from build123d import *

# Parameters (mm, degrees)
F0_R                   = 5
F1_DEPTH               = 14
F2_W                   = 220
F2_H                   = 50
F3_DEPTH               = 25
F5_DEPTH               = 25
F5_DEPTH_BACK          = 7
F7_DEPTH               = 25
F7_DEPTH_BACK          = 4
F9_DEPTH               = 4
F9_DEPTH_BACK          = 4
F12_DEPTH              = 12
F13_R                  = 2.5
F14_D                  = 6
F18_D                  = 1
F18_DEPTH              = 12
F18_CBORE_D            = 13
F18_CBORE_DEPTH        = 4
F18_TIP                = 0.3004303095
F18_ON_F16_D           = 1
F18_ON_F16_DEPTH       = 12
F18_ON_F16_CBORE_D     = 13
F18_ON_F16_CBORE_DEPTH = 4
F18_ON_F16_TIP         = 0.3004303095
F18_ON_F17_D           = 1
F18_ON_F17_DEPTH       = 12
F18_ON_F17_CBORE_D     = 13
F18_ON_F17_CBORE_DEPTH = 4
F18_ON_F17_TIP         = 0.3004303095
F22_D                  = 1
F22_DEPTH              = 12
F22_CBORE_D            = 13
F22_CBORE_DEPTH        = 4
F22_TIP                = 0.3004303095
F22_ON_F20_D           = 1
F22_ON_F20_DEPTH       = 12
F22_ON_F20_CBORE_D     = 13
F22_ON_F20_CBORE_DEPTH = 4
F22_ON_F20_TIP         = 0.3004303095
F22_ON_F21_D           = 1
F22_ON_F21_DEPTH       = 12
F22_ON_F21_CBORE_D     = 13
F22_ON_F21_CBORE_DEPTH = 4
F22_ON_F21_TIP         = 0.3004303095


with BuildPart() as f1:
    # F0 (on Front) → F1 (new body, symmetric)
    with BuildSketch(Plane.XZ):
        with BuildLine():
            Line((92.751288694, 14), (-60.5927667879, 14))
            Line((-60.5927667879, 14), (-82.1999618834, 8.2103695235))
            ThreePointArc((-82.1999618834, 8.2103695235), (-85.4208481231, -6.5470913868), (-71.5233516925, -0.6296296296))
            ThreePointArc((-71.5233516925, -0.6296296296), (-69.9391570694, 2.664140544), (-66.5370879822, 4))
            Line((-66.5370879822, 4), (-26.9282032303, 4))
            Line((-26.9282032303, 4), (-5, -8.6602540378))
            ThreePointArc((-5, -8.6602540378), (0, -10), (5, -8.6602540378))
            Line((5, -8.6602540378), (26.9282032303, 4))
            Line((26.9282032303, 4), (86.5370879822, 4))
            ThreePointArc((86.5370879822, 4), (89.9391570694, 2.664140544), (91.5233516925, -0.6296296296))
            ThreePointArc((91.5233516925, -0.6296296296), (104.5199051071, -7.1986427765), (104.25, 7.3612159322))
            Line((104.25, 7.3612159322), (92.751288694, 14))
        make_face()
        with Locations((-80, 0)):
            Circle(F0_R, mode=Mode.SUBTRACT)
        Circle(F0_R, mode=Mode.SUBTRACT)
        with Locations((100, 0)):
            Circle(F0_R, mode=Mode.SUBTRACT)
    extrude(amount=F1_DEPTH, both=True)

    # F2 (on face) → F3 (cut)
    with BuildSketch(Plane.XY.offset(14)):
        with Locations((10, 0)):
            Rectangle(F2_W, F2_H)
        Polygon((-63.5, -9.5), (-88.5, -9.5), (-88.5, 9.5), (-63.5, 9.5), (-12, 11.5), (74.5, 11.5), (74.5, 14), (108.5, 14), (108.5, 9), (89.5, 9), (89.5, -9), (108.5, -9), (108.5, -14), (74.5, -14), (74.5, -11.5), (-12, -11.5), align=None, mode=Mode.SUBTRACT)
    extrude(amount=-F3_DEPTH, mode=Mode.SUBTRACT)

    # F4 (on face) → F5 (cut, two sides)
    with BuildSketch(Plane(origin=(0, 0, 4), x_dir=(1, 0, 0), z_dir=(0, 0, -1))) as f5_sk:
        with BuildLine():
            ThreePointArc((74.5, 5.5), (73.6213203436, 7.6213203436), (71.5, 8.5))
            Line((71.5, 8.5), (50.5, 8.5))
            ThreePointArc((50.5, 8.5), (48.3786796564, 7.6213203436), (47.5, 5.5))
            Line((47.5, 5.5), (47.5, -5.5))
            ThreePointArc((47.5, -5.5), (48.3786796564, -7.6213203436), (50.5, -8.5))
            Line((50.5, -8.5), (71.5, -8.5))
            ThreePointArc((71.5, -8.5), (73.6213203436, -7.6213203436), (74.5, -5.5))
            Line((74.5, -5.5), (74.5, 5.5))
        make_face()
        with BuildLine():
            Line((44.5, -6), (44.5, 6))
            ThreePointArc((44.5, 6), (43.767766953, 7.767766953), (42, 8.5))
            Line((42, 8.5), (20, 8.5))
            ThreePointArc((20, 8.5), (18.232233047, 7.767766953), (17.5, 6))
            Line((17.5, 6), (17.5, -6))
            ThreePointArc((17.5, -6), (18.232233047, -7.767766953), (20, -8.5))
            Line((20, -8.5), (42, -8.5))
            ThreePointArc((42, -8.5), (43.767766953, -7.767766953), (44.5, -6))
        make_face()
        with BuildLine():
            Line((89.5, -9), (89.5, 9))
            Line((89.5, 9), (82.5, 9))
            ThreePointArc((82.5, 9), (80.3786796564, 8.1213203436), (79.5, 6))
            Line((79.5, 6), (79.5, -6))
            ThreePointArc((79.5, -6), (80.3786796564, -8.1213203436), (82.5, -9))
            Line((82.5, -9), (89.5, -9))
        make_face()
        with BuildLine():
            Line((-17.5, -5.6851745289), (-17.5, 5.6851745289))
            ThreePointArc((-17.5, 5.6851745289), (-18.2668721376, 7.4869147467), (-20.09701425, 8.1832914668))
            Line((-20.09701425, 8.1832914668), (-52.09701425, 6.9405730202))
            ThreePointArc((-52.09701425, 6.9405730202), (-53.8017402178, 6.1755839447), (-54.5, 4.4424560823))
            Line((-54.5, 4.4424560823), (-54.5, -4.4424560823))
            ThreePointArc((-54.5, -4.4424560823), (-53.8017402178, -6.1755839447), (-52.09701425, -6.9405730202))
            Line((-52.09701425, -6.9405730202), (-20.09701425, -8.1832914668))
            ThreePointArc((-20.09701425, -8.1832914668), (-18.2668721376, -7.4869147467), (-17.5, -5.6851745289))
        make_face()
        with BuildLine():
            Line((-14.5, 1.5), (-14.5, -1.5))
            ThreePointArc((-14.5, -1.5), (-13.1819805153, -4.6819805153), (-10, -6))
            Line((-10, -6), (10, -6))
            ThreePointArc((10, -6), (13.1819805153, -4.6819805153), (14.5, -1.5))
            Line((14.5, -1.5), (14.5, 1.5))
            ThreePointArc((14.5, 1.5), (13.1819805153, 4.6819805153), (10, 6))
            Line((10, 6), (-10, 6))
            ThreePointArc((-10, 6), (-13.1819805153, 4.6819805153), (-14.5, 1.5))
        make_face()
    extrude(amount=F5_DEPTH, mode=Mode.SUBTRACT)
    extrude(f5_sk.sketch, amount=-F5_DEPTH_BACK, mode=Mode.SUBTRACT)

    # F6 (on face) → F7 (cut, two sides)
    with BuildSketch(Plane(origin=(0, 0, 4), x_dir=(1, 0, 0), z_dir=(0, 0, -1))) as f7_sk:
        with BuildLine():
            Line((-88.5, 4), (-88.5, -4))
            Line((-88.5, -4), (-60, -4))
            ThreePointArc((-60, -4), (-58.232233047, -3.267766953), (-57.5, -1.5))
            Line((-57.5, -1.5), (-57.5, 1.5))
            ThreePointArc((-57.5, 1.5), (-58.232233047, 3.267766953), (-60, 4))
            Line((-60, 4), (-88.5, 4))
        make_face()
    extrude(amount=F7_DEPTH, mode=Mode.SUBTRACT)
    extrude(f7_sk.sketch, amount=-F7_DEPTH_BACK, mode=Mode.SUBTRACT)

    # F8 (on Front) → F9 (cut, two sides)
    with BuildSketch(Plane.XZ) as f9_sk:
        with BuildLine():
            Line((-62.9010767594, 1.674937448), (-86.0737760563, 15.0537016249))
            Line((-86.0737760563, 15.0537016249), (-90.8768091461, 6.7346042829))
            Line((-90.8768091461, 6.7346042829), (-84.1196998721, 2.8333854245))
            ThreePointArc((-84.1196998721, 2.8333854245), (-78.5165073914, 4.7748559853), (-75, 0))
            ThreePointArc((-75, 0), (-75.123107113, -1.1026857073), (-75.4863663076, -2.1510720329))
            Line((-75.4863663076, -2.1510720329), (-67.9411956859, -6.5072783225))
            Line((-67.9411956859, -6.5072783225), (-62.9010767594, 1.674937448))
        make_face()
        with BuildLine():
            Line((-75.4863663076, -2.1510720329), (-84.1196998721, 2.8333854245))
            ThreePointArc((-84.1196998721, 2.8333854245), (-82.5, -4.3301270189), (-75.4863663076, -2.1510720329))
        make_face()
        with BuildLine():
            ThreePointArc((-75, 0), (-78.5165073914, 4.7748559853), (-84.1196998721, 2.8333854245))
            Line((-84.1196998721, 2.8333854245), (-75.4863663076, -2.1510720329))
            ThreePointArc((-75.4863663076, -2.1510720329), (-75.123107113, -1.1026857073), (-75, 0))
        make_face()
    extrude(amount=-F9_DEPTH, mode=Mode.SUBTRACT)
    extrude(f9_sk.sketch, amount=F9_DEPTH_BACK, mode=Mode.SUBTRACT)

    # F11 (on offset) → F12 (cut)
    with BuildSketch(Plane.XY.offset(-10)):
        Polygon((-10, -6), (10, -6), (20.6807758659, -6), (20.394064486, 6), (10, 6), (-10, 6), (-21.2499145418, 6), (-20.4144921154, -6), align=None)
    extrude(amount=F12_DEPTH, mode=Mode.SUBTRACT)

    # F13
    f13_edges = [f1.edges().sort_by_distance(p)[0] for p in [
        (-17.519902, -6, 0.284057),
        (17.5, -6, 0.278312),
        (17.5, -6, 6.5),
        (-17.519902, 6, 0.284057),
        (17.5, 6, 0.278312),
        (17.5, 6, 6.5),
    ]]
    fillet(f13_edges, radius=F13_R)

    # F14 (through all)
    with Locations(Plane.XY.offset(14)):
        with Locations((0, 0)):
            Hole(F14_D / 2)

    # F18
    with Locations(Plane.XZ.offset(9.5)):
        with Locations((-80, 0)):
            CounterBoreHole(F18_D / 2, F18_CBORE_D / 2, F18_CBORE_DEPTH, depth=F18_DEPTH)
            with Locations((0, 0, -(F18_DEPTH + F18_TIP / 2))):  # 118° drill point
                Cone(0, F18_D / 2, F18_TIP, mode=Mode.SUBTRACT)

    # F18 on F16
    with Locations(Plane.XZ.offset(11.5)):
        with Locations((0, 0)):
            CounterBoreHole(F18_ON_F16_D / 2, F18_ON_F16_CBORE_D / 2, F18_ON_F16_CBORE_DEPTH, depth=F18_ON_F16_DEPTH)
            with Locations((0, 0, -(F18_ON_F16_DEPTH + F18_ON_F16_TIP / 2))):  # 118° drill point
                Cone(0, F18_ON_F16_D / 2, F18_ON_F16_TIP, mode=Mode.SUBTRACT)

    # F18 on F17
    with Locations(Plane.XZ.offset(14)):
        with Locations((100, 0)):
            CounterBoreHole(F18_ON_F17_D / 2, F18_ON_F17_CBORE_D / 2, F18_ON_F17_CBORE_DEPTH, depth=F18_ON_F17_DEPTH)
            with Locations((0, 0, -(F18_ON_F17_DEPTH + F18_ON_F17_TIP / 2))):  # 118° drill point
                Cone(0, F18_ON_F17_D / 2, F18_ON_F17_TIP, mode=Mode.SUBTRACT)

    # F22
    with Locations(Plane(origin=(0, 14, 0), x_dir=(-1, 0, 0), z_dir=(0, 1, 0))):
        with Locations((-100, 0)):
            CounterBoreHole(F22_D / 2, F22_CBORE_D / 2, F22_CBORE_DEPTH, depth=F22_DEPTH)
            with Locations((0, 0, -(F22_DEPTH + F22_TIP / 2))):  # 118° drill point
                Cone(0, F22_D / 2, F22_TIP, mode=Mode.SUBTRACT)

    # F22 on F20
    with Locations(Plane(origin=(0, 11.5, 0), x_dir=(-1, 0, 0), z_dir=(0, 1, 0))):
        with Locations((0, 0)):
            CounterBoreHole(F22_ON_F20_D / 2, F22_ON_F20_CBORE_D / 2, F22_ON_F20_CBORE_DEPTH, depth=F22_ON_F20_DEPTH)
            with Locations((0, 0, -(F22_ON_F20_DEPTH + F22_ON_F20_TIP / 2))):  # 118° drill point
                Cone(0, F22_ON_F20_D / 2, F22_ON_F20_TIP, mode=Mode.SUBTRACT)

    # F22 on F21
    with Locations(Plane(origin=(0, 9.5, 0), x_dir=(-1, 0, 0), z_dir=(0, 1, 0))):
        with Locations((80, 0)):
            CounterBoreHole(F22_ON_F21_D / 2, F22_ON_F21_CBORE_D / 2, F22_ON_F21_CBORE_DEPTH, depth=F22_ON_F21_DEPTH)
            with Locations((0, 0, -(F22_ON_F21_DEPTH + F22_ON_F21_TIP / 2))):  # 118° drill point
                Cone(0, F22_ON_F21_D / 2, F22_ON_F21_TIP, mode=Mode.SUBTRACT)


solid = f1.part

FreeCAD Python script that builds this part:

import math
import FreeCAD as App
import Part
import Sketcher
from FreeCAD import Vector
Q = App.Units.Quantity


def edges_at(feature, points):
    """Names of the edges that pass closest to the given points."""
    edges = feature.Shape.Edges
    near = lambda p: min(range(len(edges)), key=lambda i: edges[i].distToShape(Part.Vertex(*p))[0])
    return sorted({f"Edge{near(p) + 1}" for p in points})


def add_polygon(sketch, points):
    """Adds a closed chain of lines whose ends are joined by coincident constraints."""
    first, n = sketch.GeometryCount, len(points)
    for a, b in zip(points, points[1:] + points[:1]):
        sketch.addGeometry(Part.LineSegment(App.Vector(*a, 0), App.Vector(*b, 0)), False)
    for i in range(n):
        sketch.addConstraint(Sketcher.Constraint("Coincident", first + i, 2, first + (i + 1) % n, 1))

doc = App.newDocument("Part")
params = doc.addObject("Spreadsheet::Sheet", "Params")
for row, (alias, value) in enumerate([
    ("sketch1_diameter", "10 mm"),
    ("sketch1_radius", "10 mm"),
    ("sketch1_radius2", "8.5 mm"),
    ("pad1_length", "28 mm"),
    ("sketch2_width", "220 mm"),
    ("sketch2_width2", "25 mm"),
    ("sketch2_width3", "34 mm"),
    ("sketch2_width4", "19 mm"),
    ("sketch2_height", "50 mm"),
    ("pocket1_length", "25 mm"),
    ("sketch3_radius", "3 mm"),
    ("sketch3_radius2", "2.5 mm"),
    ("sketch3_radius3", "4.5 mm"),
    ("sketch3_width", "21 mm"),
    ("sketch3_width2", "22 mm"),
    ("pocket2_length", "25 mm"),
    ("pocket2_length2", "7 mm"),
    ("sketch4_radius", "2.5 mm"),
    ("sketch4_height", "8 mm"),
    ("sketch4_width", "28.5 mm"),
    ("pocket3_length", "25 mm"),
    ("pocket3_length2", "4 mm"),
    ("sketch5_radius", "5 mm"),
    ("pocket4_length", "4 mm"),
    ("pocket4_length2", "4 mm"),
    ("pocket5_length", "12 mm"),
    ("fillet_radius", "2.5 mm"),
    ("sketch7_diameter", "6 mm"),
    ("hole_diameter", "6 mm"),
    ("sketch8_diameter", "1 mm"),
    ("hole2_diameter", "1 mm"),
    ("hole2_depth", "12 mm"),
    ("hole2_cbore_diameter", "13 mm"),
    ("hole2_cbore_depth", "4 mm"),
    ("sketch9_diameter", "1 mm"),
    ("hole3_diameter", "1 mm"),
    ("hole3_depth", "12 mm"),
    ("hole3_cbore_diameter", "13 mm"),
    ("hole3_cbore_depth", "4 mm"),
    ("sketch10_diameter", "1 mm"),
    ("hole4_diameter", "1 mm"),
    ("hole4_depth", "12 mm"),
    ("hole4_cbore_diameter", "13 mm"),
    ("hole4_cbore_depth", "4 mm"),
    ("sketch11_diameter", "1 mm"),
    ("hole5_diameter", "1 mm"),
    ("hole5_depth", "12 mm"),
    ("hole5_cbore_diameter", "13 mm"),
    ("hole5_cbore_depth", "4 mm"),
    ("sketch12_diameter", "1 mm"),
    ("hole6_diameter", "1 mm"),
    ("hole6_depth", "12 mm"),
    ("hole6_cbore_diameter", "13 mm"),
    ("hole6_cbore_depth", "4 mm"),
    ("sketch13_diameter", "1 mm"),
    ("hole7_diameter", "1 mm"),
    ("hole7_depth", "12 mm"),
    ("hole7_cbore_diameter", "13 mm"),
    ("hole7_cbore_depth", "4 mm"),
], start=1):
    params.set(f"A{row}", alias)
    params.set(f"B{row}", "=" + value)
    params.setAlias(f"B{row}", alias)

body = doc.addObject("PartDesign::Body", "Body")

sketch1 = body.newObject("Sketcher::SketchObject", "Sketch")
sketch1.AttachmentSupport = (doc.getObject("XZ_Plane"), [""])
sketch1.MapMode = "FlatFace"
sketch1.addGeometry([
    Part.LineSegment(Vector(92.751289, 14, 0), Vector(-60.592767, 14, 0)),
    Part.LineSegment(Vector(-60.592767, 14, 0), Vector(-82.199962, 8.21037, 0)),
    Part.ArcOfCircle(Part.Circle(Vector(-80, 0, 0), Vector(0, 0, 1), 8.5), math.radians(105), math.radians(355.751977)),
    Part.ArcOfCircle(Part.Circle(Vector(-66.537088, -1, 0), Vector(0, 0, 1), 5), math.radians(90), math.radians(175.751977)),
    Part.LineSegment(Vector(-66.537088, 4, 0), Vector(-26.928203, 4, 0)),
    Part.LineSegment(Vector(-26.928203, 4, 0), Vector(-5, -8.660254, 0)),
    Part.ArcOfCircle(Part.Circle(Vector(0, 0, 0), Vector(0, 0, 1), 10), math.radians(-120), math.radians(-60)),
    Part.LineSegment(Vector(5, -8.660254, 0), Vector(26.928203, 4, 0)),
    Part.LineSegment(Vector(26.928203, 4, 0), Vector(86.537088, 4, 0)),
    Part.ArcOfCircle(Part.Circle(Vector(86.537088, -1, 0), Vector(0, 0, 1), 5), math.radians(4.248023), math.radians(90)),
    Part.ArcOfCircle(Part.Circle(Vector(100, 0, 0), Vector(0, 0, 1), 8.5), math.radians(-175.751977), math.radians(60)),
    Part.LineSegment(Vector(104.25, 7.361216, 0), Vector(92.751289, 14, 0)),
    Part.Circle(Vector(-80, 0, 0), Vector(0, 0, 1), 5),
    Part.Circle(Vector(0, 0, 0), Vector(0, 0, 1), 5),
    Part.Circle(Vector(100, 0, 0), Vector(0, 0, 1), 5),
], False)
sketch1.addConstraint([
    Sketcher.Constraint("Coincident", 0, 2, 1, 1),
    Sketcher.Constraint("Tangent", 1, 2, 2, 1),
    Sketcher.Constraint("Tangent", 2, 2, 3, 2),
    Sketcher.Constraint("Tangent", 3, 1, 4, 1),
    Sketcher.Constraint("Coincident", 4, 2, 5, 1),
    Sketcher.Constraint("Tangent", 5, 2, 6, 1),
    Sketcher.Constraint("Tangent", 6, 2, 7, 1),
    Sketcher.Constraint("Coincident", 7, 2, 8, 1),
    Sketcher.Constraint("Tangent", 8, 2, 9, 2),
    Sketcher.Constraint("Tangent", 9, 1, 10, 1),
    Sketcher.Constraint("Tangent", 10, 2, 11, 1),
    Sketcher.Constraint("Coincident", 11, 2, 0, 1),
    Sketcher.Constraint("Horizontal", 0),
    Sketcher.Constraint("Horizontal", 4),
    Sketcher.Constraint("Horizontal", 8),
    Sketcher.Constraint("Coincident", 6, 3, -1, 1),
    Sketcher.Constraint("Coincident", 13, 3, -1, 1),
    Sketcher.Constraint("Coincident", 12, 3, 2, 3),
    Sketcher.Constraint("Coincident", 14, 3, 10, 3),
    Sketcher.Constraint("Equal", 3, 9),
    Sketcher.Constraint("Equal", 2, 10),
    Sketcher.Constraint("Equal", 9, 12),
    Sketcher.Constraint("Equal", 12, 13),
    Sketcher.Constraint("Equal", 13, 14),
    Sketcher.Constraint("Symmetric", 4, 2, 7, 2, -2),
    Sketcher.Constraint("PointOnObject", 2, 3, -1),
    Sketcher.Constraint("PointOnObject", 10, 3, -1),
    Sketcher.Constraint("Parallel", 5, 11),
    Sketcher.Constraint("Diameter", 12, Q("10 mm")),
    Sketcher.Constraint("Radius", 6, Q("10 mm")),
    Sketcher.Constraint("Radius", 2, Q("8.5 mm")),
    Sketcher.Constraint("Angle", 1, Q("-165 deg")),
    Sketcher.Constraint("Angle", 5, Q("-30 deg")),
    Sketcher.Constraint("DistanceX", 2, 3, -1, 1, Q("80 mm")),
    Sketcher.Constraint("DistanceY", 3, 3, -1, 1, Q("1 mm")),
    Sketcher.Constraint("DistanceX", -1, 1, 10, 3, Q("100 mm")),
    Sketcher.Constraint("DistanceY", -1, 1, 0, 2, Q("14 mm")),
])
sketch1.setExpression("Constraints[28]", "Params.sketch1_diameter")
sketch1.setExpression("Constraints[29]", "Params.sketch1_radius")
sketch1.setExpression("Constraints[30]", "Params.sketch1_radius2")
pad1 = body.newObject("PartDesign::Pad", "Pad")
pad1.Profile = sketch1
pad1.setExpression("Length", "Params.pad1_length")
pad1.Midplane = True

sketch2 = body.newObject("Sketcher::SketchObject", "Sketch001")
sketch2.AttachmentSupport = (doc.getObject("XY_Plane"), [""])
sketch2.MapMode = "FlatFace"
sketch2.AttachmentOffset = App.Placement(Vector(0, 0, 14), App.Rotation())
add_polygon(sketch2, [(-100, 25), (-100, -25), (120, -25), (120, 25)])
add_polygon(sketch2, [(-12, -11.5), (-63.5, -9.5), (-88.5, -9.5), (-88.5, 9.5), (-63.5, 9.5), (-12, 11.5), (74.5, 11.5), (74.5, 14), (108.5, 14), (108.5, 9), (89.5, 9), (89.5, -9), (108.5, -9), (108.5, -14), (74.5, -14), (74.5, -11.5)])
sketch2.addConstraint([
    Sketcher.Constraint("Vertical", 0),
    Sketcher.Constraint("Horizontal", 1),
    Sketcher.Constraint("Vertical", 2),
    Sketcher.Constraint("Horizontal", 3),
    Sketcher.Constraint("Horizontal", 5),
    Sketcher.Constraint("Vertical", 6),
    Sketcher.Constraint("Horizontal", 7),
    Sketcher.Constraint("Horizontal", 9),
    Sketcher.Constraint("Vertical", 10),
    Sketcher.Constraint("Horizontal", 11),
    Sketcher.Constraint("Vertical", 12),
    Sketcher.Constraint("Horizontal", 13),
    Sketcher.Constraint("Vertical", 14),
    Sketcher.Constraint("Horizontal", 15),
    Sketcher.Constraint("Vertical", 16),
    Sketcher.Constraint("Horizontal", 17),
    Sketcher.Constraint("Vertical", 18),
    Sketcher.Constraint("Horizontal", 19),
    Sketcher.Constraint("Symmetric", 4, 2, 7, 2, -1),
    Sketcher.Constraint("Symmetric", 12, 2, 15, 2, -1),
    Sketcher.Constraint("Symmetric", 10, 2, 17, 2, -1),
    Sketcher.Constraint("Symmetric", 8, 2, 19, 2, -1),
    Sketcher.Constraint("Equal", 15, 6),
    Sketcher.Constraint("DistanceX", 1, 1, 1, 2, Q("220 mm")),
    Sketcher.Constraint("DistanceX", 5, 2, 5, 1, Q("25 mm")),
    Sketcher.Constraint("DistanceX", 11, 1, 11, 2, Q("34 mm")),
    Sketcher.Constraint("DistanceX", 13, 2, 13, 1, Q("19 mm")),
    Sketcher.Constraint("DistanceY", 0, 2, 0, 1, Q("50 mm")),
    Sketcher.Constraint("DistanceY", 12, 2, 12, 1, Q("5 mm")),
    Sketcher.Constraint("DistanceY", 14, 2, 14, 1, Q("18 mm")),
    Sketcher.Constraint("DistanceX", 9, 1, 9, 2, Q("86.5 mm")),
    Sketcher.Constraint("DistanceY", 10, 1, 10, 2, Q("2.5 mm")),
    Sketcher.Constraint("DistanceX", 0, 2, -1, 1, Q("100 mm")),
    Sketcher.Constraint("DistanceY", 0, 2, -1, 1, Q("25 mm")),
    Sketcher.Constraint("DistanceX", 8, 2, -1, 1, Q("12 mm")),
    Sketcher.Constraint("DistanceX", 7, 2, 9, 2, Q("138 mm")),
])
sketch2.setExpression("Constraints[43]", "Params.sketch2_width")
sketch2.setExpression("Constraints[44]", "Params.sketch2_width2")
sketch2.setExpression("Constraints[45]", "Params.sketch2_width3")
sketch2.setExpression("Constraints[46]", "Params.sketch2_width4")
sketch2.setExpression("Constraints[47]", "Params.sketch2_height")
pocket1 = body.newObject("PartDesign::Pocket", "Pocket")
pocket1.Profile = sketch2
pocket1.setExpression("Length", "Params.pocket1_length")

sketch3 = body.newObject("Sketcher::SketchObject", "Sketch002")
sketch3.AttachmentSupport = (doc.getObject("XY_Plane"), [""])
sketch3.MapMode = "FlatFace"
sketch3.AttachmentOffset = App.Placement(Vector(0, 0, 4), App.Rotation())
sketch3.addGeometry([
    Part.ArcOfCircle(Part.Circle(Vector(71.5, -5.5, 0), Vector(0, 0, 1), 3), math.radians(-90), math.radians(0)),
    Part.LineSegment(Vector(71.5, -8.5, 0), Vector(50.5, -8.5, 0)),
    Part.ArcOfCircle(Part.Circle(Vector(50.5, -5.5, 0), Vector(0, 0, 1), 3), math.radians(180), math.radians(270)),
    Part.LineSegment(Vector(47.5, -5.5, 0), Vector(47.5, 5.5, 0)),
    Part.ArcOfCircle(Part.Circle(Vector(50.5, 5.5, 0), Vector(0, 0, 1), 3), math.radians(90), math.radians(180)),
    Part.LineSegment(Vector(50.5, 8.5, 0), Vector(71.5, 8.5, 0)),
    Part.ArcOfCircle(Part.Circle(Vector(71.5, 5.5, 0), Vector(0, 0, 1), 3), math.radians(0), math.radians(90)),
    Part.LineSegment(Vector(74.5, 5.5, 0), Vector(74.5, -5.5, 0)),
    Part.LineSegment(Vector(44.5, 6, 0), Vector(44.5, -6, 0)),
    Part.ArcOfCircle(Part.Circle(Vector(42, -6, 0), Vector(0, 0, 1), 2.5), math.radians(-90), math.radians(0)),
    Part.LineSegment(Vector(42, -8.5, 0), Vector(20, -8.5, 0)),
    Part.ArcOfCircle(Part.Circle(Vector(20, -6, 0), Vector(0, 0, 1), 2.5), math.radians(180), math.radians(270)),
    Part.LineSegment(Vector(17.5, -6, 0), Vector(17.5, 6, 0)),
    Part.ArcOfCircle(Part.Circle(Vector(20, 6, 0), Vector(0, 0, 1), 2.5), math.radians(90), math.radians(180)),
    Part.LineSegment(Vector(20, 8.5, 0), Vector(42, 8.5, 0)),
    Part.ArcOfCircle(Part.Circle(Vector(42, 6, 0), Vector(0, 0, 1), 2.5), math.radians(0), math.radians(90)),
    Part.LineSegment(Vector(89.5, 9, 0), Vector(89.5, -9, 0)),
    Part.LineSegment(Vector(89.5, -9, 0), Vector(82.5, -9, 0)),
    Part.ArcOfCircle(Part.Circle(Vector(82.5, -6, 0), Vector(0, 0, 1), 3), math.radians(180), math.radians(270)),
    Part.LineSegment(Vector(79.5, -6, 0), Vector(79.5, 6, 0)),
    Part.ArcOfCircle(Part.Circle(Vector(82.5, 6, 0), Vector(0, 0, 1), 3), math.radians(90), math.radians(180)),
    Part.LineSegment(Vector(82.5, 9, 0), Vector(89.5, 9, 0)),
    Part.LineSegment(Vector(-17.5, 5.685175, 0), Vector(-17.5, -5.685175, 0)),
    Part.ArcOfCircle(Part.Circle(Vector(-20, -5.685175, 0), Vector(0, 0, 1), 2.5), math.radians(-92.223961), math.radians(0)),
    Part.LineSegment(Vector(-20.097014, -8.183291, 0), Vector(-52.097014, -6.940573, 0)),
    Part.ArcOfCircle(Part.Circle(Vector(-52, -4.442456, 0), Vector(0, 0, 1), 2.5), math.radians(180), math.radians(267.776039)),
    Part.LineSegment(Vector(-54.5, -4.442456, 0), Vector(-54.5, 4.442456, 0)),
    Part.ArcOfCircle(Part.Circle(Vector(-52, 4.442456, 0), Vector(0, 0, 1), 2.5), math.radians(92.223961), math.radians(180)),
    Part.LineSegment(Vector(-52.097014, 6.940573, 0), Vector(-20.097014, 8.183291, 0)),
    Part.ArcOfCircle(Part.Circle(Vector(-20, 5.685175, 0), Vector(0, 0, 1), 2.5), math.radians(0), math.radians(92.223961)),
    Part.LineSegment(Vector(-14.5, -1.5, 0), Vector(-14.5, 1.5, 0)),
    Part.ArcOfCircle(Part.Circle(Vector(-10, 1.5, 0), Vector(0, 0, 1), 4.5), math.radians(90), math.radians(180)),
    Part.LineSegment(Vector(-10, 6, 0), Vector(10, 6, 0)),
    Part.ArcOfCircle(Part.Circle(Vector(10, 1.5, 0), Vector(0, 0, 1), 4.5), math.radians(0), math.radians(90)),
    Part.LineSegment(Vector(14.5, 1.5, 0), Vector(14.5, -1.5, 0)),
    Part.ArcOfCircle(Part.Circle(Vector(10, -1.5, 0), Vector(0, 0, 1), 4.5), math.radians(-90), math.radians(0)),
    Part.LineSegment(Vector(10, -6, 0), Vector(-10, -6, 0)),
    Part.ArcOfCircle(Part.Circle(Vector(-10, -1.5, 0), Vector(0, 0, 1), 4.5), math.radians(180), math.radians(270)),
], False)
sketch3.addConstraint([
    Sketcher.Constraint("Tangent", 0, 1, 1, 1),
    Sketcher.Constraint("Tangent", 1, 2, 2, 2),
    Sketcher.Constraint("Tangent", 2, 1, 3, 1),
    Sketcher.Constraint("Tangent", 3, 2, 4, 2),
    Sketcher.Constraint("Tangent", 4, 1, 5, 1),
    Sketcher.Constraint("Tangent", 5, 2, 6, 2),
    Sketcher.Constraint("Tangent", 6, 1, 7, 1),
    Sketcher.Constraint("Tangent", 7, 2, 0, 2),
    Sketcher.Constraint("Tangent", 8, 2, 9, 2),
    Sketcher.Constraint("Tangent", 9, 1, 10, 1),
    Sketcher.Constraint("Tangent", 10, 2, 11, 2),
    Sketcher.Constraint("Tangent", 11, 1, 12, 1),
    Sketcher.Constraint("Tangent", 12, 2, 13, 2),
    Sketcher.Constraint("Tangent", 13, 1, 14, 1),
    Sketcher.Constraint("Tangent", 14, 2, 15, 2),
    Sketcher.Constraint("Tangent", 15, 1, 8, 1),
    Sketcher.Constraint("Coincident", 16, 2, 17, 1),
    Sketcher.Constraint("Tangent", 17, 2, 18, 2),
    Sketcher.Constraint("Tangent", 18, 1, 19, 1),
    Sketcher.Constraint("Tangent", 19, 2, 20, 2),
    Sketcher.Constraint("Tangent", 20, 1, 21, 1),
    Sketcher.Constraint("Coincident", 21, 2, 16, 1),
    Sketcher.Constraint("Tangent", 22, 2, 23, 2),
    Sketcher.Constraint("Tangent", 23, 1, 24, 1),
    Sketcher.Constraint("Tangent", 24, 2, 25, 2),
    Sketcher.Constraint("Tangent", 25, 1, 26, 1),
    Sketcher.Constraint("Tangent", 26, 2, 27, 2),
    Sketcher.Constraint("Tangent", 27, 1, 28, 1),
    Sketcher.Constraint("Tangent", 28, 2, 29, 2),
    Sketcher.Constraint("Tangent", 29, 1, 22, 1),
    Sketcher.Constraint("Tangent", 30, 2, 31, 2),
    Sketcher.Constraint("Tangent", 31, 1, 32, 1),
    Sketcher.Constraint("Tangent", 32, 2, 33, 2),
    Sketcher.Constraint("Tangent", 33, 1, 34, 1),
    Sketcher.Constraint("Tangent", 34, 2, 35, 2),
    Sketcher.Constraint("Tangent", 35, 1, 36, 1),
    Sketcher.Constraint("Tangent", 36, 2, 37, 2),
    Sketcher.Constraint("Tangent", 37, 1, 30, 1),
    Sketcher.Constraint("Horizontal", 1),
    Sketcher.Constraint("Vertical", 3),
    Sketcher.Constraint("Horizontal", 5),
    Sketcher.Constraint("Vertical", 7),
    Sketcher.Constraint("Vertical", 8),
    Sketcher.Constraint("Horizontal", 10),
    Sketcher.Constraint("Vertical", 12),
    Sketcher.Constraint("Horizontal", 14),
    Sketcher.Constraint("Vertical", 16),
    Sketcher.Constraint("Horizontal", 17),
    Sketcher.Constraint("Vertical", 19),
    Sketcher.Constraint("Horizontal", 21),
    Sketcher.Constraint("Vertical", 22),
    Sketcher.Constraint("Vertical", 26),
    Sketcher.Constraint("Vertical", 30),
    Sketcher.Constraint("Horizontal", 32),
    Sketcher.Constraint("Vertical", 34),
    Sketcher.Constraint("Horizontal", 36),
    Sketcher.Constraint("Equal", 0, 2),
    Sketcher.Constraint("Equal", 2, 4),
    Sketcher.Constraint("Equal", 4, 6),
    Sketcher.Constraint("Equal", 9, 11),
    Sketcher.Constraint("Equal", 11, 13),
    Sketcher.Constraint("Equal", 13, 15),
    Sketcher.Constraint("Equal", 6, 18),
    Sketcher.Constraint("Equal", 18, 20),
    Sketcher.Constraint("Equal", 15, 23),
    Sketcher.Constraint("Equal", 23, 25),
    Sketcher.Constraint("Equal", 25, 27),
    Sketcher.Constraint("Equal", 27, 29),
    Sketcher.Constraint("Equal", 31, 33),
    Sketcher.Constraint("Equal", 33, 35),
    Sketcher.Constraint("Equal", 35, 37),
    Sketcher.Constraint("Symmetric", 31, 3, 35, 3, -1, 1),
    Sketcher.Constraint("Symmetric", 24, 2, 27, 1, -1),
    Sketcher.Constraint("Horizontal", 11, 3, 18, 3),
    Sketcher.Constraint("Horizontal", 15, 3, 20, 3),
    Sketcher.Constraint("Horizontal", 1, 2, 9, 1),
    Sketcher.Constraint("Horizontal", 5, 2, 13, 1),
    Sketcher.Constraint("Horizontal", 19, 2, 31, 1),
    Sketcher.Constraint("Horizontal", 18, 1, 35, 1),
    Sketcher.Constraint("Radius", 0, Q("3 mm")),
    Sketcher.Constraint("Radius", 9, Q("2.5 mm")),
    Sketcher.Constraint("Radius", 31, Q("4.5 mm")),
    Sketcher.Constraint("DistanceX", 1, 2, 1, 1, Q("21 mm")),
    Sketcher.Constraint("DistanceX", 10, 2, 10, 1, Q("22 mm")),
    Sketcher.Constraint("DistanceX", 17, 2, 17, 1, Q("7 mm")),
    Sketcher.Constraint("DistanceX", 32, 1, 32, 2, Q("20 mm")),
    Sketcher.Constraint("DistanceY", 3, 1, 3, 2, Q("11 mm")),
    Sketcher.Constraint("DistanceX", -1, 1, 9, 3, Q("42 mm")),
    Sketcher.Constraint("DistanceX", 23, 3, -1, 1, Q("20 mm")),
    Sketcher.Constraint("DistanceX", 25, 3, -1, 1, Q("52 mm")),
    Sketcher.Constraint("DistanceX", 0, 3, 18, 3, Q("11 mm")),
    Sketcher.Constraint("DistanceX", 8, 2, 2, 1, Q("3 mm")),
    Sketcher.Constraint("DistanceY", 22, 2, 22, 1, Q("11.370349 mm")),
    Sketcher.Constraint("DistanceY", 24, 2, 23, 3, Q("1.255398 mm")),
])
sketch3.setExpression("Constraints[79]", "Params.sketch3_radius")
sketch3.setExpression("Constraints[80]", "Params.sketch3_radius2")
sketch3.setExpression("Constraints[81]", "Params.sketch3_radius3")
sketch3.setExpression("Constraints[82]", "Params.sketch3_width")
sketch3.setExpression("Constraints[83]", "Params.sketch3_width2")
pocket2 = body.newObject("PartDesign::Pocket", "Pocket001")
pocket2.Profile = sketch3
pocket2.Type = "TwoLengths"
pocket2.setExpression("Length", "Params.pocket2_length")
pocket2.setExpression("Length2", "Params.pocket2_length2")

sketch4 = body.newObject("Sketcher::SketchObject", "Sketch003")
sketch4.AttachmentSupport = (doc.getObject("XY_Plane"), [""])
sketch4.MapMode = "FlatFace"
sketch4.AttachmentOffset = App.Placement(Vector(0, 0, 4), App.Rotation())
sketch4.addGeometry([
    Part.LineSegment(Vector(-88.5, -4, 0), Vector(-88.5, 4, 0)),
    Part.LineSegment(Vector(-88.5, 4, 0), Vector(-60, 4, 0)),
    Part.ArcOfCircle(Part.Circle(Vector(-60, 1.5, 0), Vector(0, 0, 1), 2.5), math.radians(0), math.radians(90)),
    Part.LineSegment(Vector(-57.5, 1.5, 0), Vector(-57.5, -1.5, 0)),
    Part.ArcOfCircle(Part.Circle(Vector(-60, -1.5, 0), Vector(0, 0, 1), 2.5), math.radians(-90), math.radians(0)),
    Part.LineSegment(Vector(-60, -4, 0), Vector(-88.5, -4, 0)),
], False)
sketch4.addConstraint([
    Sketcher.Constraint("Coincident", 0, 2, 1, 1),
    Sketcher.Constraint("Tangent", 1, 2, 2, 2),
    Sketcher.Constraint("Tangent", 2, 1, 3, 1),
    Sketcher.Constraint("Tangent", 3, 2, 4, 2),
    Sketcher.Constraint("Tangent", 4, 1, 5, 1),
    Sketcher.Constraint("Coincident", 5, 2, 0, 1),
    Sketcher.Constraint("Vertical", 0),
    Sketcher.Constraint("Horizontal", 1),
    Sketcher.Constraint("Vertical", 3),
    Sketcher.Constraint("Horizontal", 5),
    Sketcher.Constraint("Equal", 2, 4),
    Sketcher.Constraint("Radius", 2, Q("2.5 mm")),
    Sketcher.Constraint("DistanceY", 0, 1, 0, 2, Q("8 mm")),
    Sketcher.Constraint("DistanceX", 1, 1, 1, 2, Q("28.5 mm")),
    Sketcher.Constraint("DistanceX", 2, 3, -1, 1, Q("60 mm")),
    Sketcher.Constraint("DistanceY", -1, 1, 0, 2, Q("4 mm")),
])
sketch4.setExpression("Constraints[11]", "Params.sketch4_radius")
sketch4.setExpression("Constraints[12]", "Params.sketch4_height")
sketch4.setExpression("Constraints[13]", "Params.sketch4_width")
pocket3 = body.newObject("PartDesign::Pocket", "Pocket002")
pocket3.Profile = sketch4
pocket3.Type = "TwoLengths"
pocket3.setExpression("Length", "Params.pocket3_length")
pocket3.setExpression("Length2", "Params.pocket3_length2")

sketch5 = body.newObject("Sketcher::SketchObject", "Sketch004")
sketch5.AttachmentSupport = (doc.getObject("XZ_Plane"), [""])
sketch5.MapMode = "FlatFace"
sketch5.addGeometry([
    Part.LineSegment(Vector(-62.901077, 1.674937, 0), Vector(-86.073776, 15.053702, 0)),
    Part.LineSegment(Vector(-86.073776, 15.053702, 0), Vector(-90.876809, 6.734604, 0)),
    Part.LineSegment(Vector(-90.876809, 6.734604, 0), Vector(-84.1197, 2.833385, 0)),
    Part.ArcOfCircle(Part.Circle(Vector(-80, 0, 0), Vector(0, 0, 1), 5), math.radians(145.481168), math.radians(334.518832)),
    Part.LineSegment(Vector(-75.486366, -2.151072, 0), Vector(-67.941196, -6.507278, 0)),
    Part.LineSegment(Vector(-67.941196, -6.507278, 0), Vector(-62.901077, 1.674937, 0)),
], False)
sketch5.addConstraint([
    Sketcher.Constraint("Coincident", 0, 2, 1, 1),
    Sketcher.Constraint("Coincident", 1, 2, 2, 1),
    Sketcher.Constraint("Coincident", 2, 2, 3, 1),
    Sketcher.Constraint("Coincident", 3, 2, 4, 1),
    Sketcher.Constraint("Coincident", 4, 2, 5, 1),
    Sketcher.Constraint("Coincident", 5, 2, 0, 1),
    Sketcher.Constraint("PointOnObject", 3, 3, -1),
    Sketcher.Constraint("Perpendicular", 0, 1),
    Sketcher.Constraint("Perpendicular", 1, 2),
    Sketcher.Constraint("Parallel", 2, 4),
    Sketcher.Constraint("Radius", 3, Q("5 mm")),
    Sketcher.Constraint("Angle", 0, Q("150 deg")),
    Sketcher.Constraint("DistanceX", 3, 3, -1, 1, Q("80 mm")),
    Sketcher.Constraint("DistanceY", -1, 1, 0, 2, Q("15.053702 mm")),
    Sketcher.Constraint("DistanceX", 2, 2, -1, 1, Q("84.1197 mm")),
    Sketcher.Constraint("DistanceX", 0, 2, 5, 2, Q("23.172699 mm")),
    Sketcher.Constraint("DistanceX", 1, 2, -1, 1, Q("90.876809 mm")),
    Sketcher.Constraint("DistanceY", 4, 2, -1, 1, Q("6.507278 mm")),
    Sketcher.Constraint("DistanceX", 0, 2, 3, 2, Q("10.58741 mm")),
])
sketch5.setExpression("Constraints[10]", "Params.sketch5_radius")
pocket4 = body.newObject("PartDesign::Pocket", "Pocket003")
pocket4.Profile = sketch5
pocket4.Type = "TwoLengths"
pocket4.setExpression("Length", "Params.pocket4_length")
pocket4.setExpression("Length2", "Params.pocket4_length2")

sketch6 = body.newObject("Sketcher::SketchObject", "Sketch005")
sketch6.AttachmentSupport = (doc.getObject("XY_Plane"), [""])
sketch6.MapMode = "FlatFace"
sketch6.AttachmentOffset = App.Placement(Vector(0, 0, -10), App.Rotation())
add_polygon(sketch6, [(20.680776, -6), (20.394064, 6), (-21.249915, 6), (-20.414492, -6)])
sketch6.addConstraint([
    Sketcher.Constraint("Horizontal", 1),
    Sketcher.Constraint("Horizontal", 3),
    Sketcher.Constraint("DistanceY", -1, 1, 0, 2, Q("6 mm")),
    Sketcher.Constraint("DistanceY", 2, 2, -1, 1, Q("6 mm")),
    Sketcher.Constraint("DistanceX", 1, 2, 1, 1, Q("41.643979 mm")),
    Sketcher.Constraint("DistanceX", 3, 1, 3, 2, Q("41.095268 mm")),
    Sketcher.Constraint("DistanceX", 0, 2, 3, 2, Q("0.286711 mm")),
    Sketcher.Constraint("DistanceX", -1, 1, 0, 2, Q("20.394064 mm")),
])
pocket5 = body.newObject("PartDesign::Pocket", "Pocket004")
pocket5.Profile = sketch6
pocket5.setExpression("Length", "Params.pocket5_length")
pocket5.Reversed = True
doc.recompute()

fillet = body.newObject("PartDesign::Fillet", "Fillet")
fillet.Base = (pocket5, edges_at(pocket5, [
    (-17.52, -6, 0.284),
    (17.5, -6, 0.278),
    (17.5, -6, 6.5),
    (-17.52, 6, 0.284),
    (17.5, 6, 0.278),
    (17.5, 6, 6.5),
]))
fillet.setExpression("Radius", "Params.fillet_radius")

sketch7 = body.newObject("Sketcher::SketchObject", "Sketch006")
sketch7.AttachmentSupport = (doc.getObject("XY_Plane"), [""])
sketch7.MapMode = "FlatFace"
sketch7.AttachmentOffset = App.Placement(Vector(0, 0, 14), App.Rotation())
sketch7.addGeometry(Part.Circle(Vector(0, 0, 0), Vector(0, 0, 1), 3), False)
sketch7.addConstraint([
    Sketcher.Constraint("Coincident", 0, 3, -1, 1),
    Sketcher.Constraint("Diameter", 0, Q("6 mm")),
])
sketch7.setExpression("Constraints[1]", "Params.sketch7_diameter")
doc.recompute()
hole = body.newObject("PartDesign::Hole", "Hole")
hole.Profile = sketch7
hole.ThreadType = "None"
hole.setExpression("Diameter", "Params.hole_diameter")
hole.DepthType = "ThroughAll"

sketch8 = body.newObject("Sketcher::SketchObject", "Sketch007")
sketch8.AttachmentSupport = (doc.getObject("XZ_Plane"), [""])
sketch8.MapMode = "FlatFace"
sketch8.AttachmentOffset = App.Placement(Vector(0, 0, 9.5), App.Rotation())
sketch8.addGeometry(Part.Circle(Vector(-80, 0, 0), Vector(0, 0, 1), 0.5), False)
sketch8.addConstraint([
    Sketcher.Constraint("PointOnObject", 0, 3, -1),
    Sketcher.Constraint("Diameter", 0, Q("1 mm")),
    Sketcher.Constraint("DistanceX", 0, 3, -1, 1, Q("80 mm")),
])
sketch8.setExpression("Constraints[1]", "Params.sketch8_diameter")
doc.recompute()
hole2 = body.newObject("PartDesign::Hole", "Hole001")
hole2.Profile = sketch8
hole2.ThreadType = "None"
hole2.setExpression("Diameter", "Params.hole2_diameter")
hole2.DepthType = "Dimension"
hole2.setExpression("Depth", "Params.hole2_depth")
hole2.DrillPoint = "Angled"
hole2.DrillPointAngle = 118
hole2.HoleCutType = "Counterbore"
hole2.setExpression("HoleCutDiameter", "Params.hole2_cbore_diameter")
hole2.setExpression("HoleCutDepth", "Params.hole2_cbore_depth")

sketch9 = body.newObject("Sketcher::SketchObject", "Sketch008")
sketch9.AttachmentSupport = (doc.getObject("XZ_Plane"), [""])
sketch9.MapMode = "FlatFace"
sketch9.AttachmentOffset = App.Placement(Vector(0, 0, 11.5), App.Rotation())
sketch9.addGeometry(Part.Circle(Vector(0, 0, 0), Vector(0, 0, 1), 0.5), False)
sketch9.addConstraint([
    Sketcher.Constraint("Coincident", 0, 3, -1, 1),
    Sketcher.Constraint("Diameter", 0, Q("1 mm")),
])
sketch9.setExpression("Constraints[1]", "Params.sketch9_diameter")
doc.recompute()
hole3 = body.newObject("PartDesign::Hole", "Hole002")
hole3.Profile = sketch9
hole3.ThreadType = "None"
hole3.setExpression("Diameter", "Params.hole3_diameter")
hole3.DepthType = "Dimension"
hole3.setExpression("Depth", "Params.hole3_depth")
hole3.DrillPoint = "Angled"
hole3.DrillPointAngle = 118
hole3.HoleCutType = "Counterbore"
hole3.setExpression("HoleCutDiameter", "Params.hole3_cbore_diameter")
hole3.setExpression("HoleCutDepth", "Params.hole3_cbore_depth")

sketch10 = body.newObject("Sketcher::SketchObject", "Sketch009")
sketch10.AttachmentSupport = (doc.getObject("XZ_Plane"), [""])
sketch10.MapMode = "FlatFace"
sketch10.AttachmentOffset = App.Placement(Vector(0, 0, 14), App.Rotation())
sketch10.addGeometry(Part.Circle(Vector(100, 0, 0), Vector(0, 0, 1), 0.5), False)
sketch10.addConstraint([
    Sketcher.Constraint("PointOnObject", 0, 3, -1),
    Sketcher.Constraint("Diameter", 0, Q("1 mm")),
    Sketcher.Constraint("DistanceX", -1, 1, 0, 3, Q("100 mm")),
])
sketch10.setExpression("Constraints[1]", "Params.sketch10_diameter")
doc.recompute()
hole4 = body.newObject("PartDesign::Hole", "Hole003")
hole4.Profile = sketch10
hole4.ThreadType = "None"
hole4.setExpression("Diameter", "Params.hole4_diameter")
hole4.DepthType = "Dimension"
hole4.setExpression("Depth", "Params.hole4_depth")
hole4.DrillPoint = "Angled"
hole4.DrillPointAngle = 118
hole4.HoleCutType = "Counterbore"
hole4.setExpression("HoleCutDiameter", "Params.hole4_cbore_diameter")
hole4.setExpression("HoleCutDepth", "Params.hole4_cbore_depth")

sketch11 = body.newObject("Sketcher::SketchObject", "Sketch010")
sketch11.AttachmentSupport = (doc.getObject("XZ_Plane"), [""])
sketch11.MapMode = "FlatFace"
sketch11.AttachmentOffset = App.Placement(Vector(0, 0, -14), App.Rotation())
sketch11.addGeometry(Part.Circle(Vector(100, 0, 0), Vector(0, 0, 1), 0.5), False)
sketch11.addConstraint([
    Sketcher.Constraint("PointOnObject", 0, 3, -1),
    Sketcher.Constraint("Diameter", 0, Q("1 mm")),
    Sketcher.Constraint("DistanceX", -1, 1, 0, 3, Q("100 mm")),
])
sketch11.setExpression("Constraints[1]", "Params.sketch11_diameter")
doc.recompute()
hole5 = body.newObject("PartDesign::Hole", "Hole004")
hole5.Profile = sketch11
hole5.ThreadType = "None"
hole5.setExpression("Diameter", "Params.hole5_diameter")
hole5.DepthType = "Dimension"
hole5.setExpression("Depth", "Params.hole5_depth")
hole5.DrillPoint = "Angled"
hole5.DrillPointAngle = 118
hole5.HoleCutType = "Counterbore"
hole5.setExpression("HoleCutDiameter", "Params.hole5_cbore_diameter")
hole5.setExpression("HoleCutDepth", "Params.hole5_cbore_depth")
hole5.Reversed = True

sketch12 = body.newObject("Sketcher::SketchObject", "Sketch011")
sketch12.AttachmentSupport = (doc.getObject("XZ_Plane"), [""])
sketch12.MapMode = "FlatFace"
sketch12.AttachmentOffset = App.Placement(Vector(0, 0, -11.5), App.Rotation())
sketch12.addGeometry(Part.Circle(Vector(0, 0, 0), Vector(0, 0, 1), 0.5), False)
sketch12.addConstraint([
    Sketcher.Constraint("Coincident", 0, 3, -1, 1),
    Sketcher.Constraint("Diameter", 0, Q("1 mm")),
])
sketch12.setExpression("Constraints[1]", "Params.sketch12_diameter")
doc.recompute()
hole6 = body.newObject("PartDesign::Hole", "Hole005")
hole6.Profile = sketch12
hole6.ThreadType = "None"
hole6.setExpression("Diameter", "Params.hole6_diameter")
hole6.DepthType = "Dimension"
hole6.setExpression("Depth", "Params.hole6_depth")
hole6.DrillPoint = "Angled"
hole6.DrillPointAngle = 118
hole6.HoleCutType = "Counterbore"
hole6.setExpression("HoleCutDiameter", "Params.hole6_cbore_diameter")
hole6.setExpression("HoleCutDepth", "Params.hole6_cbore_depth")
hole6.Reversed = True

sketch13 = body.newObject("Sketcher::SketchObject", "Sketch012")
sketch13.AttachmentSupport = (doc.getObject("XZ_Plane"), [""])
sketch13.MapMode = "FlatFace"
sketch13.AttachmentOffset = App.Placement(Vector(0, 0, -9.5), App.Rotation())
sketch13.addGeometry(Part.Circle(Vector(-80, 0, 0), Vector(0, 0, 1), 0.5), False)
sketch13.addConstraint([
    Sketcher.Constraint("PointOnObject", 0, 3, -1),
    Sketcher.Constraint("Diameter", 0, Q("1 mm")),
    Sketcher.Constraint("DistanceX", 0, 3, -1, 1, Q("80 mm")),
])
sketch13.setExpression("Constraints[1]", "Params.sketch13_diameter")
doc.recompute()
hole7 = body.newObject("PartDesign::Hole", "Hole006")
hole7.Profile = sketch13
hole7.ThreadType = "None"
hole7.setExpression("Diameter", "Params.hole7_diameter")
hole7.DepthType = "Dimension"
hole7.setExpression("Depth", "Params.hole7_depth")
hole7.DrillPoint = "Angled"
hole7.DrillPointAngle = 118
hole7.HoleCutType = "Counterbore"
hole7.setExpression("HoleCutDiameter", "Params.hole7_cbore_diameter")
hole7.setExpression("HoleCutDepth", "Params.hole7_cbore_depth")
hole7.Reversed = True

doc.recompute()
